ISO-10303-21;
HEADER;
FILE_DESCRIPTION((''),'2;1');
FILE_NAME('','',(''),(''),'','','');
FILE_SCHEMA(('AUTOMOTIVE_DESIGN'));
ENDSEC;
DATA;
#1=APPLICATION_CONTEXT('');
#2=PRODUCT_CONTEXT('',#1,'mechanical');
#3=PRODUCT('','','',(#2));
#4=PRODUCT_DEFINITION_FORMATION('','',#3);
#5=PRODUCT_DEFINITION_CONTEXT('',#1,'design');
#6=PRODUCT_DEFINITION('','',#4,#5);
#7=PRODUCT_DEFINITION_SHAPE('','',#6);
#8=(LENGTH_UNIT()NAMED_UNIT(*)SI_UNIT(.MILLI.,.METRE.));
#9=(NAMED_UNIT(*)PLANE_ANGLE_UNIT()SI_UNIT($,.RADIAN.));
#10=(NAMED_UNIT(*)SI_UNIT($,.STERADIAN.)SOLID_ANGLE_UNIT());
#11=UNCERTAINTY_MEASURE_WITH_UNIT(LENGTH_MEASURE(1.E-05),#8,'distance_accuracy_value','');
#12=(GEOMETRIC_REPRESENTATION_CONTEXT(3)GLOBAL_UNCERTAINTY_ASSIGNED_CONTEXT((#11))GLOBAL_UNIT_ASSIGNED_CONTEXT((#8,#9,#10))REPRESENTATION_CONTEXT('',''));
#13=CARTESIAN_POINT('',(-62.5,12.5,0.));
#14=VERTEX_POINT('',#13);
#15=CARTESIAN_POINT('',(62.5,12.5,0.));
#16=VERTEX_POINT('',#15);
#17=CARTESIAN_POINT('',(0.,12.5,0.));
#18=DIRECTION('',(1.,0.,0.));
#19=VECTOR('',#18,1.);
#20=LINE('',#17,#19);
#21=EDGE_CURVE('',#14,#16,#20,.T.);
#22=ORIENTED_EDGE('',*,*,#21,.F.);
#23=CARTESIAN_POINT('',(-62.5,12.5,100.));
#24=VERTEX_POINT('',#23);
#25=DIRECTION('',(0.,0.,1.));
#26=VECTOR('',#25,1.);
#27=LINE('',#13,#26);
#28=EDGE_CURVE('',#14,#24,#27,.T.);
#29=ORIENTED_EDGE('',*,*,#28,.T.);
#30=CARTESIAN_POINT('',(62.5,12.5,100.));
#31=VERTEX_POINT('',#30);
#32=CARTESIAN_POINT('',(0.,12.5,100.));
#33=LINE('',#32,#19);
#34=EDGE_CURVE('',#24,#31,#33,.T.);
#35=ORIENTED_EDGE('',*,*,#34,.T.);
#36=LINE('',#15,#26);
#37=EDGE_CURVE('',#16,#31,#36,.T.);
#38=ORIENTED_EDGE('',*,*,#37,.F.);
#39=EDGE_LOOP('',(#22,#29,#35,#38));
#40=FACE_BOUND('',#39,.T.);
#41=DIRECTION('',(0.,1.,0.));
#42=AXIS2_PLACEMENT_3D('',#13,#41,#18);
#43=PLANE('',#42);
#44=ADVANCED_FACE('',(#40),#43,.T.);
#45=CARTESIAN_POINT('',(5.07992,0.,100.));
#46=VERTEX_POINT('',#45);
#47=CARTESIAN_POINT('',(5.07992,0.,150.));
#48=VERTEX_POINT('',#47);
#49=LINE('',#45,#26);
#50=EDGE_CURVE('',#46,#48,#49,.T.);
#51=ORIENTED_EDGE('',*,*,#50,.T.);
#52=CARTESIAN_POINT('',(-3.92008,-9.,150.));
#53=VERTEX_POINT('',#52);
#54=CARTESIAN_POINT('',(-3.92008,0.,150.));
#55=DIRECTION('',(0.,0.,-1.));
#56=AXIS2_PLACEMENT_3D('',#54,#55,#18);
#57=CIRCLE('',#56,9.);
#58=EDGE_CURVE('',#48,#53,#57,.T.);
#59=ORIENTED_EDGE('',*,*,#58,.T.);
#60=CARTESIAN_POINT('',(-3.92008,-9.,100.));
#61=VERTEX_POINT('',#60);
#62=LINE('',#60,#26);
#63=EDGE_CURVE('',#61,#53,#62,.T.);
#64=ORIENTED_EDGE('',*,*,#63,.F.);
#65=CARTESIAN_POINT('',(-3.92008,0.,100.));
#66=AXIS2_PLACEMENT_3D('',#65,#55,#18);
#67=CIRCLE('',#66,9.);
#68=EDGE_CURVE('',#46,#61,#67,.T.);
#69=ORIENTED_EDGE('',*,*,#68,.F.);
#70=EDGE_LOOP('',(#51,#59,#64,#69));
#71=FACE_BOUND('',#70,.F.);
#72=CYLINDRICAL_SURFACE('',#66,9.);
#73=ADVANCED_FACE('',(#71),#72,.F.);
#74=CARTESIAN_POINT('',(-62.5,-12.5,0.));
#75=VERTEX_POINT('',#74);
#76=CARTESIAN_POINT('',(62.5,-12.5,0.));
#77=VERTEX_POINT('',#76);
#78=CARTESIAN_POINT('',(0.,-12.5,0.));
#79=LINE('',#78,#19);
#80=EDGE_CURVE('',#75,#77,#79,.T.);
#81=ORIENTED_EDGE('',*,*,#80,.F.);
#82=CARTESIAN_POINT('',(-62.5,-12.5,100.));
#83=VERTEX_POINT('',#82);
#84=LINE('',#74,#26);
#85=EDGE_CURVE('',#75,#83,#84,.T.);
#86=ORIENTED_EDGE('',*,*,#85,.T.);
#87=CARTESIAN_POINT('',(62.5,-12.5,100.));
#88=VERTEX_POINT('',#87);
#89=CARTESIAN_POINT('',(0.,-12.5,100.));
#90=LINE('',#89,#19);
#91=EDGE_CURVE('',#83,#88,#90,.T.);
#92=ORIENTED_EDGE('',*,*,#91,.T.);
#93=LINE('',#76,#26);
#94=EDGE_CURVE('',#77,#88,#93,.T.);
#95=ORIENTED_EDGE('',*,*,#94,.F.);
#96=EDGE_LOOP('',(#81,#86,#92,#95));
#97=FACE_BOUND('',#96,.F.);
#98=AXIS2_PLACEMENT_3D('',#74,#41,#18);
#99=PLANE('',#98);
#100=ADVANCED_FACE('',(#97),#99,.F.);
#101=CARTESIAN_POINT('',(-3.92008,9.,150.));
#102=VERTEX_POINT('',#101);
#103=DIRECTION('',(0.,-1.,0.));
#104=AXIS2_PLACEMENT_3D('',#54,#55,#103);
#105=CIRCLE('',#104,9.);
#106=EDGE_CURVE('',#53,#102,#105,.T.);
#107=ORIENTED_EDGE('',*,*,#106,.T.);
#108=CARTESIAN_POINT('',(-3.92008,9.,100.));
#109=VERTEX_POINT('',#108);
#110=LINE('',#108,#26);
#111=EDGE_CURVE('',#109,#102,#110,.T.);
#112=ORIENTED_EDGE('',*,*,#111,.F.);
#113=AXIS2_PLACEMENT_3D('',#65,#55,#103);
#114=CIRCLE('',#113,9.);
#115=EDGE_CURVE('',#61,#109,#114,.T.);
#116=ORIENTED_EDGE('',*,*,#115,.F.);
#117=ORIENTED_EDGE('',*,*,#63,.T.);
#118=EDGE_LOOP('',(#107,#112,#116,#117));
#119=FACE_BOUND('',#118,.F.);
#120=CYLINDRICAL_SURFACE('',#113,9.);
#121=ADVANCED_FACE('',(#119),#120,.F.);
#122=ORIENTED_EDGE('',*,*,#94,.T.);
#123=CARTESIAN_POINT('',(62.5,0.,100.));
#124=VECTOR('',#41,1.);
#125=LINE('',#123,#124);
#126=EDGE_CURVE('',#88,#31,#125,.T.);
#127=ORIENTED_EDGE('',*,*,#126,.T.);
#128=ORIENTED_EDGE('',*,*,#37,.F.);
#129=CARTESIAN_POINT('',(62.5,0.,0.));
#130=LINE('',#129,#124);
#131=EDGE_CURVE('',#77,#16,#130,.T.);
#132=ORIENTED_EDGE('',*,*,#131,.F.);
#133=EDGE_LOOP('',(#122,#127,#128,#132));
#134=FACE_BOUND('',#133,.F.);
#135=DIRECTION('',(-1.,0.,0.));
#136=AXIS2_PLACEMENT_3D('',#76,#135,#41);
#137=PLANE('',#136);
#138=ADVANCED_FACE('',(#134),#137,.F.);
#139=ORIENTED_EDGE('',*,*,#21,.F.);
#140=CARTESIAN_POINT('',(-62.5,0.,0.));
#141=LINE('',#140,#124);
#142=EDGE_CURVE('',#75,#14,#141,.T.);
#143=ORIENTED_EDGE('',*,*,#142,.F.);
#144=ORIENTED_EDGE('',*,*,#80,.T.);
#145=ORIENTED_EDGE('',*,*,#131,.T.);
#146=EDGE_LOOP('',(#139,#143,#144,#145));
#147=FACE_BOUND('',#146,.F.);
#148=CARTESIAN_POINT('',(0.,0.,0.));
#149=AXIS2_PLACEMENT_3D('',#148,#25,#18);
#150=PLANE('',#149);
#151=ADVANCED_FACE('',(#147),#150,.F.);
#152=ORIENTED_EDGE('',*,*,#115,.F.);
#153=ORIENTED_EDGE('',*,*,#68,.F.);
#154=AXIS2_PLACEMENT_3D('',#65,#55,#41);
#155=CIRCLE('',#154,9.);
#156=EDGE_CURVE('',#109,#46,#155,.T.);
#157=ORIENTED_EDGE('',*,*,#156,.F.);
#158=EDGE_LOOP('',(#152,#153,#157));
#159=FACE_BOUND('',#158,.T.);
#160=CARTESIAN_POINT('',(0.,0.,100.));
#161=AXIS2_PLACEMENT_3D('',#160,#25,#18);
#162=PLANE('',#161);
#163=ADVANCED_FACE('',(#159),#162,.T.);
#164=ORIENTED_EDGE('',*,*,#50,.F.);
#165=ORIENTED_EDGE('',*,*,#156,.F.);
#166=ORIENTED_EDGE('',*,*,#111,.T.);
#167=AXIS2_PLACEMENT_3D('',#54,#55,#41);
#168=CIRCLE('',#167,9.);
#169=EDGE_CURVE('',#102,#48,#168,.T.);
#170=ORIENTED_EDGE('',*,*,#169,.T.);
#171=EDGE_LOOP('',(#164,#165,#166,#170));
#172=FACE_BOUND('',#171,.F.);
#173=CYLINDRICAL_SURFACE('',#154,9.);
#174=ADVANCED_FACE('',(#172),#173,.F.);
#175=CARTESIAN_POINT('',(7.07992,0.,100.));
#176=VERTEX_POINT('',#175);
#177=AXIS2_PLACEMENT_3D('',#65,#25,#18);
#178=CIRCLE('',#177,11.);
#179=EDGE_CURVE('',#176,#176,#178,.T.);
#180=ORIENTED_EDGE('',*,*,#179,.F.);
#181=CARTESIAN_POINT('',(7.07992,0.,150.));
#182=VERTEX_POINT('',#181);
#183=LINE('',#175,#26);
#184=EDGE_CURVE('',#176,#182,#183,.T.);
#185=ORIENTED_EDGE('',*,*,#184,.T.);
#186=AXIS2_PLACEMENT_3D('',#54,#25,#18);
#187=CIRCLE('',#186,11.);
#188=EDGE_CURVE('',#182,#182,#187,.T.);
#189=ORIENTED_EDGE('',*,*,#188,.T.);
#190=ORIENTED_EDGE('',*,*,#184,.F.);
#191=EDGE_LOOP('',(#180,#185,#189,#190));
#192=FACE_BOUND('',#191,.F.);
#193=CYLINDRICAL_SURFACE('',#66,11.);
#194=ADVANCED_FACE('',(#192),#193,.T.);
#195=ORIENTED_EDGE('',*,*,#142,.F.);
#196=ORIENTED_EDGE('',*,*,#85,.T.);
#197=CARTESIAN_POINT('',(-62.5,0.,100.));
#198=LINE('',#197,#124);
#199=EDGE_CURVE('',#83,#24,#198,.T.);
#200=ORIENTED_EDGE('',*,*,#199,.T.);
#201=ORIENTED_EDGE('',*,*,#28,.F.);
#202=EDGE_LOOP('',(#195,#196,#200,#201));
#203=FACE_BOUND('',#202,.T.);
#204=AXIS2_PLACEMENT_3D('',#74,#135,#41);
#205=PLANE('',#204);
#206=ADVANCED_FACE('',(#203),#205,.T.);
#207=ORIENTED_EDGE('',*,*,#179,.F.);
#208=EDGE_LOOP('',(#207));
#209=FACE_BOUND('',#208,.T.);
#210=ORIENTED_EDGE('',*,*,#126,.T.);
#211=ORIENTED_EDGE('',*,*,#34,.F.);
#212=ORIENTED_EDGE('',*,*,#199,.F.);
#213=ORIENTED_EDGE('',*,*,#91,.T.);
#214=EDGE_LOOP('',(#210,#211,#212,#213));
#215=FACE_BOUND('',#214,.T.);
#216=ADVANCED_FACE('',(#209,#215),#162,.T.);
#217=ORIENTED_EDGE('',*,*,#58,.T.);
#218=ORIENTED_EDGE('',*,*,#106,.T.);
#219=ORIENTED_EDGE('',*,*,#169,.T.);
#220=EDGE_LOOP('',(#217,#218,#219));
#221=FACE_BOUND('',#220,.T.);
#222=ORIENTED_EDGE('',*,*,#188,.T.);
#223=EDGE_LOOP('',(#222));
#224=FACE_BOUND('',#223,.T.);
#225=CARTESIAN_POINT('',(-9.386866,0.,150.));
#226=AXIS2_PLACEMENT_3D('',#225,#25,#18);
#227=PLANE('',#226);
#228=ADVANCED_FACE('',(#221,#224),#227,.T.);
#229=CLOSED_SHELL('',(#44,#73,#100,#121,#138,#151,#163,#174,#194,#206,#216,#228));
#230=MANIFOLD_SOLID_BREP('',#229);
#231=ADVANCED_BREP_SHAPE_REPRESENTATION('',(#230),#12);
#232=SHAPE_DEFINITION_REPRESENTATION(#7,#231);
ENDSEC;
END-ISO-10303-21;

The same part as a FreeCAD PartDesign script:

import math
import FreeCAD as App
import Part
import Sketcher


def add_polygon(sketch, points):
    """Adds a closed chain of lines whose ends are joined by coincident constraints."""
    first, n = sketch.GeometryCount, len(points)
    for a, b in zip(points, points[1:] + points[:1]):
        sketch.addGeometry(Part.LineSegment(App.Vector(*a, 0), App.Vector(*b, 0)), False)
    for i in range(n):
        sketch.addConstraint(Sketcher.Constraint("Coincident", first + i, 2, first + (i + 1) % n, 1))

doc = App.newDocument("Part")
params = doc.addObject("Spreadsheet::Sheet", "Params")
for row, (alias, value) in enumerate([
    ("sketch1_width", "125 mm"),
    ("sketch1_height", "25 mm"),
    ("pad1_length", "100 mm"),
    ("sketch2_diameter", "22 mm"),
    ("sketch2_radius", "9 mm"),
    ("pad2_length", "50 mm"),
], start=1):
    params.set(f"A{row}", alias)
    params.set(f"B{row}", "=" + value)
    params.setAlias(f"B{row}", alias)

body = doc.addObject("PartDesign::Body", "Body")

sketch1 = body.newObject("Sketcher::SketchObject", "Sketch")
sketch1.AttachmentSupport = (doc.getObject("XY_Plane"), [""])
sketch1.MapMode = "FlatFace"
add_polygon(sketch1, [(-62, 12), (-62, -12), (62, -12), (62, 12)])
sketch1.addConstraint(Sketcher.Constraint("Vertical", 0))
sketch1.addConstraint(Sketcher.Constraint("Horizontal", 1))
sketch1.addConstraint(Sketcher.Constraint("Vertical", 2))
sketch1.addConstraint(Sketcher.Constraint("Horizontal", 3))
sketch1.addConstraint(Sketcher.Constraint("Symmetric", 0, 2, 2, 2, -1, 1))
sketch1.addConstraint(Sketcher.Constraint("DistanceX", 1, 1, 1, 2, 125.0))
sketch1.addConstraint(Sketcher.Constraint("DistanceY", 0, 2, 0, 1, 25.0))
sketch1.setExpression("Constraints[9]", "Params.sketch1_width")
sketch1.setExpression("Constraints[10]", "Params.sketch1_height")
pad1 = body.newObject("PartDesign::Pad", "Pad")
pad1.Profile = sketch1
pad1.setExpression("Length", "Params.pad1_length")

sketch2 = body.newObject("Sketcher::SketchObject", "Sketch001")
sketch2.AttachmentSupport = (doc.getObject("XY_Plane"), [""])
sketch2.MapMode = "FlatFace"
sketch2.AttachmentOffset = App.Placement(App.Vector(0, 0, 100), App.Rotation())
sketch2.addGeometry(Part.Circle(App.Vector(-4, 0, 0), App.Vector(0, 0, 1), 11), False)
sketch2.addGeometry(Part.ArcOfCircle(Part.Circle(App.Vector(-4, 0, 0), App.Vector(0, 0, 1), 9), math.radians(90), math.radians(270)), False)
sketch2.addGeometry(Part.ArcOfCircle(Part.Circle(App.Vector(-4, 0, 0), App.Vector(0, 0, 1), 9), math.radians(0), math.radians(90)), False)
sketch2.addGeometry(Part.ArcOfCircle(Part.Circle(App.Vector(-4, 0, 0), App.Vector(0, 0, 1), 9), math.radians(-90), math.radians(0)), False)
sketch2.addConstraint(Sketcher.Constraint("Tangent", 1, 1, 2, 2))
sketch2.addConstraint(Sketcher.Constraint("Tangent", 2, 1, 3, 2))
sketch2.addConstraint(Sketcher.Constraint("Tangent", 3, 1, 1, 2))
sketch2.addConstraint(Sketcher.Constraint("Coincident", 1, 3, 0, 3))
sketch2.addConstraint(Sketcher.Constraint("Symmetric", 1, 1, 3, 1, -1))
sketch2.addConstraint(Sketcher.Constraint("PointOnObject", 2, 1, -1))
sketch2.addConstraint(Sketcher.Constraint("Vertical", 3, 3, 1, 1))
sketch2.addConstraint(Sketcher.Constraint("Diameter", 0, 22.0))
sketch2.addConstraint(Sketcher.Constraint("Radius", 1, 9.0))
sketch2.addConstraint(Sketcher.Constraint("DistanceX", 0, 3, -1, 1, 3.92008))
sketch2.setExpression("Constraints[7]", "Params.sketch2_diameter")
sketch2.setExpression("Constraints[8]", "Params.sketch2_radius")
pad2 = body.newObject("PartDesign::Pad", "Pad001")
pad2.Profile = sketch2
pad2.setExpression("Length", "Params.pad2_length")

doc.recompute()
